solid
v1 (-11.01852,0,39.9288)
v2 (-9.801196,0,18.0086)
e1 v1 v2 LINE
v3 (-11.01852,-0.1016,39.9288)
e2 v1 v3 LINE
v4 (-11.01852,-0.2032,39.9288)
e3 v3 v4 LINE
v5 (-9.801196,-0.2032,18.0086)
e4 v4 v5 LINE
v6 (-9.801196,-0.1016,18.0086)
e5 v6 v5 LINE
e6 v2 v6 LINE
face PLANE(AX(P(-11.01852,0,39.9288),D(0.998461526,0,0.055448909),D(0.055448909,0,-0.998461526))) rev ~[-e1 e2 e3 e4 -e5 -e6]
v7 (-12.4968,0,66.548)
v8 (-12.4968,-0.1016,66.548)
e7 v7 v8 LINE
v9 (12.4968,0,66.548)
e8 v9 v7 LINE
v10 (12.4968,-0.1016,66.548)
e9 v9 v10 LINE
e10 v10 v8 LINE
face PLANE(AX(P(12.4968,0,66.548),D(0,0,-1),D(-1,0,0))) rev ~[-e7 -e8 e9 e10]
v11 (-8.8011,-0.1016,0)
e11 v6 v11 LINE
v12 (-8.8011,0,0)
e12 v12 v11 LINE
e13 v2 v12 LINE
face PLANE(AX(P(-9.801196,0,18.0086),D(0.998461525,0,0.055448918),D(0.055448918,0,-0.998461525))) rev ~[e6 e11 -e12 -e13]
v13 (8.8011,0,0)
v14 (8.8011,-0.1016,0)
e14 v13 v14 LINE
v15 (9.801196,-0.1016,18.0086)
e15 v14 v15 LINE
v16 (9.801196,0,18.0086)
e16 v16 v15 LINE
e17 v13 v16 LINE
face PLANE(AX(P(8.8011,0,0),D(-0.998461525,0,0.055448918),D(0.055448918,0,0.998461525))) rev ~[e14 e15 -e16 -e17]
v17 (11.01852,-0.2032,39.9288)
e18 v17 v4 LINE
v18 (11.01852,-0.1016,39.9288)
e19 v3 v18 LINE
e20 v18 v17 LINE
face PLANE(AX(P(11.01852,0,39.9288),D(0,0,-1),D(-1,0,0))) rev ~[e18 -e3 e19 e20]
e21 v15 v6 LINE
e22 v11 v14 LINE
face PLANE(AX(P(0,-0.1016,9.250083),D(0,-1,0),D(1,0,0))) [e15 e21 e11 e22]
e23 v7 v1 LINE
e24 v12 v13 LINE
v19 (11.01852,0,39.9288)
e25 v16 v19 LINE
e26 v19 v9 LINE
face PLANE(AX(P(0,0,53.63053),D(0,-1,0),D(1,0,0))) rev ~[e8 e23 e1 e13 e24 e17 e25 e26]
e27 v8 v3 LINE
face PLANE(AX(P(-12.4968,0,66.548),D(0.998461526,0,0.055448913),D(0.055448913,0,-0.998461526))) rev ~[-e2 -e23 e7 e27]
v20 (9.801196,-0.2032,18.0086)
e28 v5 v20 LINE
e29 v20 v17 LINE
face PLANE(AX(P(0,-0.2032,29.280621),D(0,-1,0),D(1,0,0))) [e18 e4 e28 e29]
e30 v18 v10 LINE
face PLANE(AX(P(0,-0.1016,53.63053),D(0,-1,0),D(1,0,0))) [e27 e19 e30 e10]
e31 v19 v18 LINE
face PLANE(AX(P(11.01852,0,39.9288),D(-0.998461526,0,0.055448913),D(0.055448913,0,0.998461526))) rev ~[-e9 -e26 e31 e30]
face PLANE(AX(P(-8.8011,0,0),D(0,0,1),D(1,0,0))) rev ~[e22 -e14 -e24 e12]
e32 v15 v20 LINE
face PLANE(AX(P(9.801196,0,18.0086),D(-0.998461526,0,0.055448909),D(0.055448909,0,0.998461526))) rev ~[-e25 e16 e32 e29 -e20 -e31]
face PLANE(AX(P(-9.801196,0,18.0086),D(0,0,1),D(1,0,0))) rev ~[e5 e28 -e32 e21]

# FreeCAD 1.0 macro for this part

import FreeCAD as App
import Part
import Sketcher
Q = App.Units.Quantity

doc = App.newDocument("Part")
body = doc.addObject("PartDesign::Body", "Body")

# Sketch on XZ plane
sketch1 = doc.addObject("Sketcher::SketchObject", "Sketch")
body.addObject(sketch1)
sketch1.AttachmentSupport = (doc.XZ_Plane, [""])
sketch1.MapMode = "FlatFace"
sketch1.addGeometry(Part.LineSegment(App.Vector(9.801196, 18.0086, 0), App.Vector(11.01852, 39.9288, 0)), False)
sketch1.addGeometry(Part.LineSegment(App.Vector(11.01852, 39.9288, 0), App.Vector(-11.01852, 39.9288, 0)), False)
sketch1.addGeometry(Part.LineSegment(App.Vector(-11.01852, 39.9288, 0), App.Vector(-9.801196, 18.0086, 0)), False)
sketch1.addGeometry(Part.LineSegment(App.Vector(-9.801196, 18.0086, 0), App.Vector(9.801196, 18.0086, 0)), False)
sketch1.addConstraint(Sketcher.Constraint("Coincident", 0, 2, 1, 1))
sketch1.addConstraint(Sketcher.Constraint("Coincident", 1, 2, 2, 1))
sketch1.addConstraint(Sketcher.Constraint("Coincident", 2, 2, 3, 1))
sketch1.addConstraint(Sketcher.Constraint("Coincident", 3, 2, 0, 1))
sketch1.addConstraint(Sketcher.Constraint("Horizontal", 1))
sketch1.addConstraint(Sketcher.Constraint("Horizontal", 3))
sketch1.addConstraint(Sketcher.Constraint("Equal", 0, 2))
sketch1.addConstraint(Sketcher.Constraint("DistanceX", 1, 2, 1, 1, Q("0.8676 in")))
sketch1.addConstraint(Sketcher.Constraint("DistanceY", -1, 1, 0, 2, Q("1.572 in")))
sketch1.addConstraint(Sketcher.Constraint("DistanceY", -1, 1, 2, 2, Q("0.709 in")))
sketch1.addConstraint(Sketcher.Constraint("DistanceX", -1, 1, 0, 2, Q("0.4338 in")))
sketch1.addConstraint(Sketcher.Constraint("DistanceX", 3, 1, 3, 2, Q("19.602392 mm")))
pad1 = doc.addObject("PartDesign::Pad", "Pad")
body.addObject(pad1)
pad1.Profile = sketch1
pad1.Length = Q("0.008 in")

# Sketch on XZ plane
sketch2 = doc.addObject("Sketcher::SketchObject", "Sketch001")
body.addObject(sketch2)
sketch2.AttachmentSupport = (doc.XZ_Plane, [""])
sketch2.MapMode = "FlatFace"
sketch2.addGeometry(Part.LineSegment(App.Vector(11.01852, 39.9288, 0), App.Vector(12.4968, 66.548, 0)), False)
sketch2.addGeometry(Part.LineSegment(App.Vector(12.4968, 66.548, 0), App.Vector(-12.4968, 66.548, 0)), False)
sketch2.addGeometry(Part.LineSegment(App.Vector(-12.4968, 66.548, 0), App.Vector(-11.01852, 39.9288, 0)), False)
sketch2.addGeometry(Part.LineSegment(App.Vector(-11.01852, 39.9288, 0), App.Vector(11.01852, 39.9288, 0)), False)
sketch2.addGeometry(Part.LineSegment(App.Vector(-8.8011, 0, 0), App.Vector(8.8011, 0, 0)), False)
sketch2.addGeometry(Part.LineSegment(App.Vector(8.8011, 0, 0), App.Vector(9.801196, 18.0086, 0)), False)
sketch2.addGeometry(Part.LineSegment(App.Vector(9.801196, 18.0086, 0), App.Vector(-9.801196, 18.0086, 0)), False)
sketch2.addGeometry(Part.LineSegment(App.Vector(-9.801196, 18.0086, 0), App.Vector(-8.8011, 0, 0)), False)
sketch2.addConstraint(Sketcher.Constraint("Coincident", 0, 2, 1, 1))
sketch2.addConstraint(Sketcher.Constraint("Coincident", 1, 2, 2, 1))
sketch2.addConstraint(Sketcher.Constraint("Coincident", 2, 2, 3, 1))
sketch2.addConstraint(Sketcher.Constraint("Coincident", 3, 2, 0, 1))
sketch2.addConstraint(Sketcher.Constraint("Coincident", 4, 2, 5, 1))
sketch2.addConstraint(Sketcher.Constraint("Coincident", 5, 2, 6, 1))
sketch2.addConstraint(Sketcher.Constraint("Coincident", 6, 2, 7, 1))
sketch2.addConstraint(Sketcher.Constraint("Coincident", 7, 2, 4, 1))
sketch2.addConstraint(Sketcher.Constraint("Horizontal", 1))
sketch2.addConstraint(Sketcher.Constraint("Horizontal", 3))
sketch2.addConstraint(Sketcher.Constraint("Horizontal", 4))
sketch2.addConstraint(Sketcher.Constraint("Horizontal", 6))
sketch2.addConstraint(Sketcher.Constraint("Symmetric", 4, 2, 7, 2, -1, 1))
sketch2.addConstraint(Sketcher.Constraint("Parallel", 0, 5))
sketch2.addConstraint(Sketcher.Constraint("Parallel", 2, 7))
sketch2.addConstraint(Sketcher.Constraint("Equal", 0, 2))
sketch2.addConstraint(Sketcher.Constraint("DistanceX", 1, 2, 1, 1, Q("0.984 in")))
sketch2.addConstraint(Sketcher.Constraint("DistanceX", 4, 1, 4, 2, Q("0.693 in")))
sketch2.addConstraint(Sketcher.Constraint("DistanceY", -1, 1, 0, 2, Q("2.62 in")))
sketch2.addConstraint(Sketcher.Constraint("DistanceX", 3, 1, 3, 2, Q("0.8676 in")))
sketch2.addConstraint(Sketcher.Constraint("DistanceX", -1, 1, 0, 2, Q("0.492 in")))
sketch2.addConstraint(Sketcher.Constraint("DistanceY", -1, 1, 2, 2, Q("1.572 in")))
sketch2.addConstraint(Sketcher.Constraint("DistanceY", -1, 1, 5, 2, Q("0.709 in")))
pad2 = doc.addObject("PartDesign::Pad", "Pad001")
body.addObject(pad2)
pad2.Profile = sketch2
pad2.Length = Q("0.004 in")

doc.recompute()
